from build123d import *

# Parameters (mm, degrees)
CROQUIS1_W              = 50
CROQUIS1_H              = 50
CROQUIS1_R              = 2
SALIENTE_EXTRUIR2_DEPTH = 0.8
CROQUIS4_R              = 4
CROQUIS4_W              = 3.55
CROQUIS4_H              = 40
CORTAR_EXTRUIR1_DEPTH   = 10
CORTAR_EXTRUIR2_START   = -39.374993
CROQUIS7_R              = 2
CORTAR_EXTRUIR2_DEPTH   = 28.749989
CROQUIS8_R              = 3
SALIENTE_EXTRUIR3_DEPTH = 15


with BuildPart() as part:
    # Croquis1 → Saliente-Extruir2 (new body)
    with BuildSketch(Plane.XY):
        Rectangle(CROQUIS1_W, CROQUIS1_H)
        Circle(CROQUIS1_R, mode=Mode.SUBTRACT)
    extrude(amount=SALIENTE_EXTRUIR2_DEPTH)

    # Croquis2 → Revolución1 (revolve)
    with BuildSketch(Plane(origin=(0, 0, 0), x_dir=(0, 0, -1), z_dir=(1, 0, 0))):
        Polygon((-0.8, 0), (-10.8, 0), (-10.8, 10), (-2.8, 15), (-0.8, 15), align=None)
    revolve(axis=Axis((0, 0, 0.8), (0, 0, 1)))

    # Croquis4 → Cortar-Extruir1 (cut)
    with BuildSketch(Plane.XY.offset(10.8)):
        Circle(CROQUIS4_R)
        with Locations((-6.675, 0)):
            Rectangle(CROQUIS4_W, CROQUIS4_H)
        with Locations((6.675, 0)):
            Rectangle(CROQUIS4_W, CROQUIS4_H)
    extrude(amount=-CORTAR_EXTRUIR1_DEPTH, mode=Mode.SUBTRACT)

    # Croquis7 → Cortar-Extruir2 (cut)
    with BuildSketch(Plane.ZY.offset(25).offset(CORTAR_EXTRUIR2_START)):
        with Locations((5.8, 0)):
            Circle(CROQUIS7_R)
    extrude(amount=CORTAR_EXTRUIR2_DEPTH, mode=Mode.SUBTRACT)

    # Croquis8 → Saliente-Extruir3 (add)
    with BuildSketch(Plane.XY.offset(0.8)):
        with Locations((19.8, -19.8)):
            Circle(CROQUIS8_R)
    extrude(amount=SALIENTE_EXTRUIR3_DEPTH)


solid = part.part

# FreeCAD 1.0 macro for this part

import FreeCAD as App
import Part
import Sketcher
from FreeCAD import Vector


def add_polygon(sketch, points):
    """Adds a closed chain of lines whose ends are joined by coincident constraints."""
    first, n = sketch.GeometryCount, len(points)
    for a, b in zip(points, points[1:] + points[:1]):
        sketch.addGeometry(Part.LineSegment(App.Vector(*a, 0), App.Vector(*b, 0)), False)
    for i in range(n):
        sketch.addConstraint(Sketcher.Constraint("Coincident", first + i, 2, first + (i + 1) % n, 1))

doc = App.newDocument("Part")
body = doc.addObject("PartDesign::Body", "Body")

sketch1 = body.newObject("Sketcher::SketchObject", "Sketch")
sketch1.AttachmentSupport = (doc.getObject("XY_Plane"), [""])
sketch1.MapMode = "FlatFace"
add_polygon(sketch1, [(-25, 25), (-25, -25), (25, -25), (25, 25)])
sketch1.addGeometry(Part.Circle(Vector(0, 0, 0), Vector(0, 0, 1), 2), False)
sketch1.addConstraint(Sketcher.Constraint("Vertical", 0))
sketch1.addConstraint(Sketcher.Constraint("Horizontal", 1))
sketch1.addConstraint(Sketcher.Constraint("Vertical", 2))
sketch1.addConstraint(Sketcher.Constraint("Horizontal", 3))
sketch1.addConstraint(Sketcher.Constraint("Coincident", 4, 3, -1, 1))
sketch1.addConstraint(Sketcher.Constraint("Symmetric", 0, 2, 2, 2, -1, 1))
sketch1.addConstraint(Sketcher.Constraint("Equal", 3, 0))
sketch1.addConstraint(Sketcher.Constraint("Diameter", 4, 4.0))
sketch1.addConstraint(Sketcher.Constraint("DistanceX", 1, 1, 1, 2, 50.0))
pad1 = body.newObject("PartDesign::Pad", "Pad")
pad1.Profile = sketch1
pad1.Length = 0.8

sketch2 = body.newObject("Sketcher::SketchObject", "Sketch001")
sketch2.AttachmentSupport = (doc.getObject("YZ_Plane"), [""])
sketch2.MapMode = "FlatFace"
add_polygon(sketch2, [(0, 10.8), (0, 0.8), (15, 0.8), (15, 2.8), (10, 10.8)])
sketch2.addConstraint(Sketcher.Constraint("Vertical", 0))
sketch2.addConstraint(Sketcher.Constraint("Horizontal", 1))
sketch2.addConstraint(Sketcher.Constraint("Vertical", 2))
sketch2.addConstraint(Sketcher.Constraint("Horizontal", 4))
sketch2.addConstraint(Sketcher.Constraint("PointOnObject", 0, 2, -2))
sketch2.addConstraint(Sketcher.Constraint("Equal", 4, 0))
sketch2.addConstraint(Sketcher.Constraint("DistanceX", 1, 1, 1, 2, 15.0))
sketch2.addConstraint(Sketcher.Constraint("DistanceX", 4, 2, 4, 1, 10.0))
sketch2.addConstraint(Sketcher.Constraint("DistanceY", 2, 1, 2, 2, 2.0))
sketch2.addConstraint(Sketcher.Constraint("DistanceY", -1, 1, 0, 2, 0.8))
revolution = body.newObject("PartDesign::Revolution", "Revolution")
revolution.Profile = sketch2
revolution.ReferenceAxis = (sketch2, ["V_Axis"])
revolution.Angle = 360

sketch3 = body.newObject("Sketcher::SketchObject", "Sketch002")
sketch3.AttachmentSupport = (doc.getObject("XY_Plane"), [""])
sketch3.MapMode = "FlatFace"
sketch3.AttachmentOffset = App.Placement(Vector(0, 0, 10.8), App.Rotation())
sketch3.addGeometry(Part.Circle(Vector(0, 0, 0), Vector(0, 0, 1), 4), False)
add_polygon(sketch3, [(-8.4, 20), (-8.4, -20), (-4.9, -20), (-4.9, 20)])
add_polygon(sketch3, [(4.9, 20), (4.9, -20), (8.4, -20), (8.4, 20)])
sketch3.addConstraint(Sketcher.Constraint("Vertical", 1))
sketch3.addConstraint(Sketcher.Constraint("Horizontal", 2))
sketch3.addConstraint(Sketcher.Constraint("Vertical", 3))
sketch3.addConstraint(Sketcher.Constraint("Horizontal", 4))
sketch3.addConstraint(Sketcher.Constraint("Vertical", 5))
sketch3.addConstraint(Sketcher.Constraint("Horizontal", 6))
sketch3.addConstraint(Sketcher.Constraint("Vertical", 7))
sketch3.addConstraint(Sketcher.Constraint("Horizontal", 8))
sketch3.addConstraint(Sketcher.Constraint("Coincident", 0, 3, -1, 1))
sketch3.addConstraint(Sketcher.Constraint("Symmetric", 3, 2, 5, 2, -1, 1))
sketch3.addConstraint(Sketcher.Constraint("Symmetric", 1, 2, 7, 2, -1, 1))
sketch3.addConstraint(Sketcher.Constraint("Horizontal", 2, 2, 5, 2))
sketch3.addConstraint(Sketcher.Constraint("Diameter", 0, 8.0))
sketch3.addConstraint(Sketcher.Constraint("DistanceY", 1, 2, 1, 1, 40.0))
sketch3.addConstraint(Sketcher.Constraint("DistanceX", 2, 1, 2, 2, 3.55))
sketch3.addConstraint(Sketcher.Constraint("DistanceX", 2, 2, -1, 1, 4.9))
pocket1 = body.newObject("PartDesign::Pocket", "Pocket")
pocket1.Profile = sketch3
pocket1.Length = 10

sketch4 = body.newObject("Sketcher::SketchObject", "Sketch003")
sketch4.AttachmentSupport = (doc.getObject("YZ_Plane"), [""])
sketch4.MapMode = "FlatFace"
sketch4.AttachmentOffset = App.Placement(Vector(0, 0, 14.374993), App.Rotation())
sketch4.addGeometry(Part.Circle(Vector(0, 5.8, 0), Vector(0, 0, 1), 2), False)
sketch4.addConstraint(Sketcher.Constraint("PointOnObject", 0, 3, -2))
sketch4.addConstraint(Sketcher.Constraint("Diameter", 0, 4.0))
sketch4.addConstraint(Sketcher.Constraint("DistanceY", -1, 1, 0, 3, 5.8))
pocket2 = body.newObject("PartDesign::Pocket", "Pocket001")
pocket2.Profile = sketch4
pocket2.Length = 28.749989

sketch5 = body.newObject("Sketcher::SketchObject", "Sketch004")
sketch5.AttachmentSupport = (doc.getObject("XY_Plane"), [""])
sketch5.MapMode = "FlatFace"
sketch5.AttachmentOffset = App.Placement(Vector(0, 0, 0.8), App.Rotation())
sketch5.addGeometry(Part.Circle(Vector(19.8, -19.8, 0), Vector(0, 0, 1), 3), False)
sketch5.addConstraint(Sketcher.Constraint("Diameter", 0, 6.0))
sketch5.addConstraint(Sketcher.Constraint("DistanceX", -1, 1, 0, 3, 19.8))
sketch5.addConstraint(Sketcher.Constraint("DistanceY", 0, 3, -1, 1, 19.8))
pad2 = body.newObject("PartDesign::Pad", "Pad001")
pad2.Profile = sketch5
pad2.Length = 15

doc.recompute()
